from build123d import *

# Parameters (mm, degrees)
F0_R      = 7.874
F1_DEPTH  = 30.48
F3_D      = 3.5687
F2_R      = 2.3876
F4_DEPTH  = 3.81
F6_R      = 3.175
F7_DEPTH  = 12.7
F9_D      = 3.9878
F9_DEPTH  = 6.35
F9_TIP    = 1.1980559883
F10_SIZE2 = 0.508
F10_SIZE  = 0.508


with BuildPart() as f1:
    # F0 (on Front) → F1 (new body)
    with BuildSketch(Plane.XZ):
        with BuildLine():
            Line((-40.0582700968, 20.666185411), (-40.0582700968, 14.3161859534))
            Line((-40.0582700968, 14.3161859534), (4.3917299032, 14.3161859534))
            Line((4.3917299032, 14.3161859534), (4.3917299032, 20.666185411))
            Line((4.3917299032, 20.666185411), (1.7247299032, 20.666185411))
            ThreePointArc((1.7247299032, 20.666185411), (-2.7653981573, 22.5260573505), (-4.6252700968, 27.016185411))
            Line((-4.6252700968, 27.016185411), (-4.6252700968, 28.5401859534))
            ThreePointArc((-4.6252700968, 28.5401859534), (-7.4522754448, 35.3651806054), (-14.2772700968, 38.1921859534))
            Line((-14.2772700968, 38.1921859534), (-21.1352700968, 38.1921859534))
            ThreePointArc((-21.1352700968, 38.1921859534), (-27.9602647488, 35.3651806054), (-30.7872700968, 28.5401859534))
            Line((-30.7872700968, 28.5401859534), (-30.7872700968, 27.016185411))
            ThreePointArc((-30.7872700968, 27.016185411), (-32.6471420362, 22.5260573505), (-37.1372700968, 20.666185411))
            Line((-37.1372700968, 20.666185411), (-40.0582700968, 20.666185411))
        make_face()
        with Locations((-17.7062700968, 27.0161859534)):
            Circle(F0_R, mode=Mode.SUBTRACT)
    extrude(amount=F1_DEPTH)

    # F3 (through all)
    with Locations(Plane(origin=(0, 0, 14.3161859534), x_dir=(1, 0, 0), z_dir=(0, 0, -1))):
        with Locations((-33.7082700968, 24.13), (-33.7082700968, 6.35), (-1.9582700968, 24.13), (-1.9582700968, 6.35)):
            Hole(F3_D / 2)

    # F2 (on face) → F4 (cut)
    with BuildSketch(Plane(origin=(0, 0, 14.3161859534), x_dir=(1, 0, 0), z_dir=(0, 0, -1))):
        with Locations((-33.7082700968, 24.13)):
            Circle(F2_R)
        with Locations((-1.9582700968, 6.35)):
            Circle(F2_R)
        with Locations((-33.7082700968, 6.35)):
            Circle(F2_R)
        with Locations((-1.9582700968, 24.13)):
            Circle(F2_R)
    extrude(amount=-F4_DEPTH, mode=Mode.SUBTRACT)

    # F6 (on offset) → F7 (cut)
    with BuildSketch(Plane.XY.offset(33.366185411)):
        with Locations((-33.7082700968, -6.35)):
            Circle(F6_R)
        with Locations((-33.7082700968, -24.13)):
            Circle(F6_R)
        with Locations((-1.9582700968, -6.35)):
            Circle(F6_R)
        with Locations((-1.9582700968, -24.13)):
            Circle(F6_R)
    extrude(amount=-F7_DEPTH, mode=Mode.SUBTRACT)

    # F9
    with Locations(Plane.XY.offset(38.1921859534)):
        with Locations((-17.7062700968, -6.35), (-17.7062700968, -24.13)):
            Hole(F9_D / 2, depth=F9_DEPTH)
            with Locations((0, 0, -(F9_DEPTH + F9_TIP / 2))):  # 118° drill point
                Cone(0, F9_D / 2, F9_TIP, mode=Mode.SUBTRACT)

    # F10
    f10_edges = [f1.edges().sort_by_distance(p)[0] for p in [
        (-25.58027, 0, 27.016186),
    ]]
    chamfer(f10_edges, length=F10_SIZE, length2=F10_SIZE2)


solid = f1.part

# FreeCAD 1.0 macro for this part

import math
import FreeCAD as App
import Part
import Sketcher
from FreeCAD import Vector
Q = App.Units.Quantity


def edges_at(feature, points):
    """Names of the edges that pass closest to the given points."""
    edges = feature.Shape.Edges
    near = lambda p: min(range(len(edges)), key=lambda i: edges[i].distToShape(Part.Vertex(*p))[0])
    return sorted({f"Edge{near(p) + 1}" for p in points})

doc = App.newDocument("Part")
body = doc.addObject("PartDesign::Body", "Body")

sketch1 = body.newObject("Sketcher::SketchObject", "Sketch")
sketch1.AttachmentSupport = (doc.getObject("XZ_Plane"), [""])
sketch1.MapMode = "FlatFace"
sketch1.addGeometry(Part.LineSegment(Vector(-40.1, 20.7, 0), Vector(-40.1, 14.3, 0)), False)
sketch1.addGeometry(Part.LineSegment(Vector(-40.1, 14.3, 0), Vector(4.4, 14.3, 0)), False)
sketch1.addGeometry(Part.LineSegment(Vector(4.4, 14.3, 0), Vector(4.4, 20.7, 0)), False)
sketch1.addGeometry(Part.LineSegment(Vector(4.4, 20.7, 0), Vector(1.7, 20.7, 0)), False)
sketch1.addGeometry(Part.ArcOfCircle(Part.Circle(Vector(1.7, 27, 0), Vector(0, 0, 1), 6.3), math.radians(180), math.radians(270)), False)
sketch1.addGeometry(Part.LineSegment(Vector(-4.6, 27, 0), Vector(-4.6, 28.5, 0)), False)
sketch1.addGeometry(Part.ArcOfCircle(Part.Circle(Vector(-14.3, 28.5, 0), Vector(0, 0, 1), 9.7), math.radians(0), math.radians(90)), False)
sketch1.addGeometry(Part.LineSegment(Vector(-14.3, 38.2, 0), Vector(-21.1, 38.2, 0)), False)
sketch1.addGeometry(Part.ArcOfCircle(Part.Circle(Vector(-21.1, 28.5, 0), Vector(0, 0, 1), 9.7), math.radians(90), math.radians(180)), False)
sketch1.addGeometry(Part.LineSegment(Vector(-30.8, 28.5, 0), Vector(-30.8, 27, 0)), False)
sketch1.addGeometry(Part.ArcOfCircle(Part.Circle(Vector(-37.1, 27, 0), Vector(0, 0, 1), 6.3), math.radians(-90), math.radians(0)), False)
sketch1.addGeometry(Part.LineSegment(Vector(-37.1, 20.7, 0), Vector(-40.1, 20.7, 0)), False)
sketch1.addGeometry(Part.Circle(Vector(-17.7, 27, 0), Vector(0, 0, 1), 7.9), False)
sketch1.addConstraint(Sketcher.Constraint("Coincident", 0, 2, 1, 1))
sketch1.addConstraint(Sketcher.Constraint("Coincident", 1, 2, 2, 1))
sketch1.addConstraint(Sketcher.Constraint("Coincident", 2, 2, 3, 1))
sketch1.addConstraint(Sketcher.Constraint("Tangent", 3, 2, 4, 2))
sketch1.addConstraint(Sketcher.Constraint("Tangent", 4, 1, 5, 1))
sketch1.addConstraint(Sketcher.Constraint("Tangent", 5, 2, 6, 1))
sketch1.addConstraint(Sketcher.Constraint("Tangent", 6, 2, 7, 1))
sketch1.addConstraint(Sketcher.Constraint("Tangent", 7, 2, 8, 1))
sketch1.addConstraint(Sketcher.Constraint("Tangent", 8, 2, 9, 1))
sketch1.addConstraint(Sketcher.Constraint("Tangent", 9, 2, 10, 2))
sketch1.addConstraint(Sketcher.Constraint("Tangent", 10, 1, 11, 1))
sketch1.addConstraint(Sketcher.Constraint("Coincident", 11, 2, 0, 1))
sketch1.addConstraint(Sketcher.Constraint("Vertical", 0))
sketch1.addConstraint(Sketcher.Constraint("Horizontal", 1))
sketch1.addConstraint(Sketcher.Constraint("Vertical", 2))
sketch1.addConstraint(Sketcher.Constraint("Horizontal", 3))
sketch1.addConstraint(Sketcher.Constraint("Vertical", 5))
sketch1.addConstraint(Sketcher.Constraint("Horizontal", 7))
sketch1.addConstraint(Sketcher.Constraint("Vertical", 9))
sketch1.addConstraint(Sketcher.Constraint("Horizontal", 11))
sketch1.addConstraint(Sketcher.Constraint("Equal", 6, 8))
sketch1.addConstraint(Sketcher.Constraint("Equal", 4, 10))
sketch1.addConstraint(Sketcher.Constraint("Horizontal", 4, 3, 10, 3))
sketch1.addConstraint(Sketcher.Constraint("Horizontal", 10, 3, 12, 3))
sketch1.addConstraint(Sketcher.Constraint("Diameter", 12, Q("0.62 in")))
sketch1.addConstraint(Sketcher.Constraint("Radius", 4, Q("0.25 in")))
sketch1.addConstraint(Sketcher.Constraint("Radius", 6, Q("0.38 in")))
sketch1.addConstraint(Sketcher.Constraint("DistanceX", 1, 1, 1, 2, Q("1.75 in")))
sketch1.addConstraint(Sketcher.Constraint("DistanceX", 7, 2, 7, 1, Q("0.27 in")))
sketch1.addConstraint(Sketcher.Constraint("DistanceY", 0, 2, 0, 1, Q("0.25 in")))
sketch1.addConstraint(Sketcher.Constraint("DistanceY", 5, 1, 5, 2, Q("0.06 in")))
sketch1.addConstraint(Sketcher.Constraint("DistanceX", 3, 2, 3, 1, Q("0.105 in")))
sketch1.addConstraint(Sketcher.Constraint("DistanceX", 0, 2, 12, 3, Q("0.88 in")))
sketch1.addConstraint(Sketcher.Constraint("DistanceX", -1, 1, 4, 3, Q("1.72473 mm")))
sketch1.addConstraint(Sketcher.Constraint("DistanceY", -1, 1, 4, 3, Q("27.016185 mm")))
pad1 = body.newObject("PartDesign::Pad", "Pad")
pad1.Profile = sketch1
pad1.Length = Q("1.2 in")

sketch2 = body.newObject("Sketcher::SketchObject", "Sketch001")
sketch2.AttachmentSupport = (doc.getObject("XY_Plane"), [""])
sketch2.MapMode = "FlatFace"
sketch2.AttachmentOffset = App.Placement(Vector(0, 0, 14.316186), App.Rotation())
sketch2.addGeometry(Part.Circle(Vector(-33.7, -24.1, 0), Vector(0, 0, 1), 1.8), False)
sketch2.addGeometry(Part.Circle(Vector(-33.7, -6.3, 0), Vector(0, 0, 1), 1.8), False)
sketch2.addGeometry(Part.Circle(Vector(-2, -24.1, 0), Vector(0, 0, 1), 1.8), False)
sketch2.addGeometry(Part.Circle(Vector(-2, -6.3, 0), Vector(0, 0, 1), 1.8), False)
sketch2.addConstraint(Sketcher.Constraint("Equal", 0, 1))
sketch2.addConstraint(Sketcher.Constraint("Equal", 1, 2))
sketch2.addConstraint(Sketcher.Constraint("Equal", 2, 3))
sketch2.addConstraint(Sketcher.Constraint("Horizontal", 0, 3, 2, 3))
sketch2.addConstraint(Sketcher.Constraint("Horizontal", 1, 3, 3, 3))
sketch2.addConstraint(Sketcher.Constraint("Vertical", 0, 3, 1, 3))
sketch2.addConstraint(Sketcher.Constraint("Vertical", 2, 3, 3, 3))
sketch2.addConstraint(Sketcher.Constraint("Diameter", 0, Q("0.1405 in")))
sketch2.addConstraint(Sketcher.Constraint("DistanceY", 0, 3, 1, 3, Q("0.7 in")))
sketch2.addConstraint(Sketcher.Constraint("DistanceY", 0, 3, -1, 1, Q("0.95 in")))
sketch2.addConstraint(Sketcher.Constraint("DistanceX", 0, 3, 2, 3, Q("1.25 in")))
sketch2.addConstraint(Sketcher.Constraint("DistanceX", 0, 3, -1, 1, Q("33.70827 mm")))
doc.recompute()
hole = body.newObject("PartDesign::Hole", "Hole")
hole.Profile = sketch2
hole.ThreadType = "None"
hole.Diameter = Q("0.1405 in")
hole.DepthType = "ThroughAll"
hole.Reversed = True

sketch3 = body.newObject("Sketcher::SketchObject", "Sketch002")
sketch3.AttachmentSupport = (doc.getObject("XY_Plane"), [""])
sketch3.MapMode = "FlatFace"
sketch3.AttachmentOffset = App.Placement(Vector(0, 0, 14.316186), App.Rotation())
sketch3.addGeometry(Part.Circle(Vector(-33.7, -24.1, 0), Vector(0, 0, 1), 2.4), False)
sketch3.addGeometry(Part.Circle(Vector(-2, -6.3, 0), Vector(0, 0, 1), 2.4), False)
sketch3.addGeometry(Part.Circle(Vector(-33.7, -6.3, 0), Vector(0, 0, 1), 2.4), False)
sketch3.addGeometry(Part.Circle(Vector(-2, -24.1, 0), Vector(0, 0, 1), 2.4), False)
sketch3.addConstraint(Sketcher.Constraint("Equal", 0, 1))
sketch3.addConstraint(Sketcher.Constraint("Equal", 1, 2))
sketch3.addConstraint(Sketcher.Constraint("Equal", 2, 3))
sketch3.addConstraint(Sketcher.Constraint("Horizontal", 1, 3, 2, 3))
sketch3.addConstraint(Sketcher.Constraint("Horizontal", 0, 3, 3, 3))
sketch3.addConstraint(Sketcher.Constraint("Vertical", 0, 3, 2, 3))
sketch3.addConstraint(Sketcher.Constraint("Vertical", 1, 3, 3, 3))
sketch3.addConstraint(Sketcher.Constraint("Diameter", 0, Q("0.188 in")))
sketch3.addConstraint(Sketcher.Constraint("DistanceY", 0, 3, 1, 3, Q("0.7 in")))
sketch3.addConstraint(Sketcher.Constraint("DistanceY", 0, 3, -1, 1, Q("0.95 in")))
sketch3.addConstraint(Sketcher.Constraint("DistanceX", 0, 3, 1, 3, Q("1.25 in")))
sketch3.addConstraint(Sketcher.Constraint("DistanceX", 0, 3, -1, 1, Q("33.70827 mm")))
pocket1 = body.newObject("PartDesign::Pocket", "Pocket")
pocket1.Profile = sketch3
pocket1.Length = Q("0.15 in")
pocket1.Reversed = True

sketch4 = body.newObject("Sketcher::SketchObject", "Sketch003")
sketch4.AttachmentSupport = (doc.getObject("XY_Plane"), [""])
sketch4.MapMode = "FlatFace"
sketch4.AttachmentOffset = App.Placement(Vector(0, 0, 33.366185), App.Rotation())
sketch4.addGeometry(Part.Circle(Vector(-33.7, -6.3, 0), Vector(0, 0, 1), 3.2), False)
sketch4.addGeometry(Part.Circle(Vector(-33.7, -24.1, 0), Vector(0, 0, 1), 3.2), False)
sketch4.addGeometry(Part.Circle(Vector(-2, -6.3, 0), Vector(0, 0, 1), 3.2), False)
sketch4.addGeometry(Part.Circle(Vector(-2, -24.1, 0), Vector(0, 0, 1), 3.2), False)
sketch4.addConstraint(Sketcher.Constraint("Equal", 0, 1))
sketch4.addConstraint(Sketcher.Constraint("Equal", 1, 2))
sketch4.addConstraint(Sketcher.Constraint("Equal", 2, 3))
sketch4.addConstraint(Sketcher.Constraint("Horizontal", 0, 3, 2, 3))
sketch4.addConstraint(Sketcher.Constraint("Horizontal", 1, 3, 3, 3))
sketch4.addConstraint(Sketcher.Constraint("Vertical", 0, 3, 1, 3))
sketch4.addConstraint(Sketcher.Constraint("Vertical", 2, 3, 3, 3))
sketch4.addConstraint(Sketcher.Constraint("Diameter", 0, Q("0.25 in")))
sketch4.addConstraint(Sketcher.Constraint("DistanceY", 1, 3, 0, 3, Q("0.7 in")))
sketch4.addConstraint(Sketcher.Constraint("DistanceY", 0, 3, -1, 1, Q("0.25 in")))
sketch4.addConstraint(Sketcher.Constraint("DistanceX", 0, 3, 2, 3, Q("1.25 in")))
sketch4.addConstraint(Sketcher.Constraint("DistanceX", 0, 3, -1, 1, Q("33.70827 mm")))
pocket2 = body.newObject("PartDesign::Pocket", "Pocket001")
pocket2.Profile = sketch4
pocket2.Length = Q("0.5 in")

sketch5 = body.newObject("Sketcher::SketchObject", "Sketch004")
sketch5.AttachmentSupport = (doc.getObject("XY_Plane"), [""])
sketch5.MapMode = "FlatFace"
sketch5.AttachmentOffset = App.Placement(Vector(0, 0, 38.192186), App.Rotation())
sketch5.addGeometry(Part.Circle(Vector(-17.7, -6.3, 0), Vector(0, 0, 1), 2), False)
sketch5.addGeometry(Part.Circle(Vector(-17.7, -24.1, 0), Vector(0, 0, 1), 2), False)
sketch5.addConstraint(Sketcher.Constraint("Equal", 0, 1))
sketch5.addConstraint(Sketcher.Constraint("Vertical", 0, 3, 1, 3))
sketch5.addConstraint(Sketcher.Constraint("Diameter", 0, Q("0.157 in")))
sketch5.addConstraint(Sketcher.Constraint("DistanceY", 1, 3, 0, 3, Q("0.7 in")))
sketch5.addConstraint(Sketcher.Constraint("DistanceY", 0, 3, -1, 1, Q("0.25 in")))
sketch5.addConstraint(Sketcher.Constraint("DistanceX", 0, 3, -1, 1, Q("17.70627 mm")))
doc.recompute()
hole2 = body.newObject("PartDesign::Hole", "Hole001")
hole2.Profile = sketch5
hole2.ThreadType = "None"
hole2.Diameter = Q("0.157 in")
hole2.DepthType = "Dimension"
hole2.Depth = Q("0.25 in")
hole2.DrillPoint = "Angled"
hole2.DrillPointAngle = 118
doc.recompute()

chamfer = body.newObject("PartDesign::Chamfer", "Chamfer")
chamfer.Base = (hole2, edges_at(hole2, [(-25.58, 0, 27.016)]))
chamfer.ChamferType = "Two distances"
chamfer.Size = Q("0.02 in")
chamfer.Size2 = Q("0.02 in")

doc.recompute()
